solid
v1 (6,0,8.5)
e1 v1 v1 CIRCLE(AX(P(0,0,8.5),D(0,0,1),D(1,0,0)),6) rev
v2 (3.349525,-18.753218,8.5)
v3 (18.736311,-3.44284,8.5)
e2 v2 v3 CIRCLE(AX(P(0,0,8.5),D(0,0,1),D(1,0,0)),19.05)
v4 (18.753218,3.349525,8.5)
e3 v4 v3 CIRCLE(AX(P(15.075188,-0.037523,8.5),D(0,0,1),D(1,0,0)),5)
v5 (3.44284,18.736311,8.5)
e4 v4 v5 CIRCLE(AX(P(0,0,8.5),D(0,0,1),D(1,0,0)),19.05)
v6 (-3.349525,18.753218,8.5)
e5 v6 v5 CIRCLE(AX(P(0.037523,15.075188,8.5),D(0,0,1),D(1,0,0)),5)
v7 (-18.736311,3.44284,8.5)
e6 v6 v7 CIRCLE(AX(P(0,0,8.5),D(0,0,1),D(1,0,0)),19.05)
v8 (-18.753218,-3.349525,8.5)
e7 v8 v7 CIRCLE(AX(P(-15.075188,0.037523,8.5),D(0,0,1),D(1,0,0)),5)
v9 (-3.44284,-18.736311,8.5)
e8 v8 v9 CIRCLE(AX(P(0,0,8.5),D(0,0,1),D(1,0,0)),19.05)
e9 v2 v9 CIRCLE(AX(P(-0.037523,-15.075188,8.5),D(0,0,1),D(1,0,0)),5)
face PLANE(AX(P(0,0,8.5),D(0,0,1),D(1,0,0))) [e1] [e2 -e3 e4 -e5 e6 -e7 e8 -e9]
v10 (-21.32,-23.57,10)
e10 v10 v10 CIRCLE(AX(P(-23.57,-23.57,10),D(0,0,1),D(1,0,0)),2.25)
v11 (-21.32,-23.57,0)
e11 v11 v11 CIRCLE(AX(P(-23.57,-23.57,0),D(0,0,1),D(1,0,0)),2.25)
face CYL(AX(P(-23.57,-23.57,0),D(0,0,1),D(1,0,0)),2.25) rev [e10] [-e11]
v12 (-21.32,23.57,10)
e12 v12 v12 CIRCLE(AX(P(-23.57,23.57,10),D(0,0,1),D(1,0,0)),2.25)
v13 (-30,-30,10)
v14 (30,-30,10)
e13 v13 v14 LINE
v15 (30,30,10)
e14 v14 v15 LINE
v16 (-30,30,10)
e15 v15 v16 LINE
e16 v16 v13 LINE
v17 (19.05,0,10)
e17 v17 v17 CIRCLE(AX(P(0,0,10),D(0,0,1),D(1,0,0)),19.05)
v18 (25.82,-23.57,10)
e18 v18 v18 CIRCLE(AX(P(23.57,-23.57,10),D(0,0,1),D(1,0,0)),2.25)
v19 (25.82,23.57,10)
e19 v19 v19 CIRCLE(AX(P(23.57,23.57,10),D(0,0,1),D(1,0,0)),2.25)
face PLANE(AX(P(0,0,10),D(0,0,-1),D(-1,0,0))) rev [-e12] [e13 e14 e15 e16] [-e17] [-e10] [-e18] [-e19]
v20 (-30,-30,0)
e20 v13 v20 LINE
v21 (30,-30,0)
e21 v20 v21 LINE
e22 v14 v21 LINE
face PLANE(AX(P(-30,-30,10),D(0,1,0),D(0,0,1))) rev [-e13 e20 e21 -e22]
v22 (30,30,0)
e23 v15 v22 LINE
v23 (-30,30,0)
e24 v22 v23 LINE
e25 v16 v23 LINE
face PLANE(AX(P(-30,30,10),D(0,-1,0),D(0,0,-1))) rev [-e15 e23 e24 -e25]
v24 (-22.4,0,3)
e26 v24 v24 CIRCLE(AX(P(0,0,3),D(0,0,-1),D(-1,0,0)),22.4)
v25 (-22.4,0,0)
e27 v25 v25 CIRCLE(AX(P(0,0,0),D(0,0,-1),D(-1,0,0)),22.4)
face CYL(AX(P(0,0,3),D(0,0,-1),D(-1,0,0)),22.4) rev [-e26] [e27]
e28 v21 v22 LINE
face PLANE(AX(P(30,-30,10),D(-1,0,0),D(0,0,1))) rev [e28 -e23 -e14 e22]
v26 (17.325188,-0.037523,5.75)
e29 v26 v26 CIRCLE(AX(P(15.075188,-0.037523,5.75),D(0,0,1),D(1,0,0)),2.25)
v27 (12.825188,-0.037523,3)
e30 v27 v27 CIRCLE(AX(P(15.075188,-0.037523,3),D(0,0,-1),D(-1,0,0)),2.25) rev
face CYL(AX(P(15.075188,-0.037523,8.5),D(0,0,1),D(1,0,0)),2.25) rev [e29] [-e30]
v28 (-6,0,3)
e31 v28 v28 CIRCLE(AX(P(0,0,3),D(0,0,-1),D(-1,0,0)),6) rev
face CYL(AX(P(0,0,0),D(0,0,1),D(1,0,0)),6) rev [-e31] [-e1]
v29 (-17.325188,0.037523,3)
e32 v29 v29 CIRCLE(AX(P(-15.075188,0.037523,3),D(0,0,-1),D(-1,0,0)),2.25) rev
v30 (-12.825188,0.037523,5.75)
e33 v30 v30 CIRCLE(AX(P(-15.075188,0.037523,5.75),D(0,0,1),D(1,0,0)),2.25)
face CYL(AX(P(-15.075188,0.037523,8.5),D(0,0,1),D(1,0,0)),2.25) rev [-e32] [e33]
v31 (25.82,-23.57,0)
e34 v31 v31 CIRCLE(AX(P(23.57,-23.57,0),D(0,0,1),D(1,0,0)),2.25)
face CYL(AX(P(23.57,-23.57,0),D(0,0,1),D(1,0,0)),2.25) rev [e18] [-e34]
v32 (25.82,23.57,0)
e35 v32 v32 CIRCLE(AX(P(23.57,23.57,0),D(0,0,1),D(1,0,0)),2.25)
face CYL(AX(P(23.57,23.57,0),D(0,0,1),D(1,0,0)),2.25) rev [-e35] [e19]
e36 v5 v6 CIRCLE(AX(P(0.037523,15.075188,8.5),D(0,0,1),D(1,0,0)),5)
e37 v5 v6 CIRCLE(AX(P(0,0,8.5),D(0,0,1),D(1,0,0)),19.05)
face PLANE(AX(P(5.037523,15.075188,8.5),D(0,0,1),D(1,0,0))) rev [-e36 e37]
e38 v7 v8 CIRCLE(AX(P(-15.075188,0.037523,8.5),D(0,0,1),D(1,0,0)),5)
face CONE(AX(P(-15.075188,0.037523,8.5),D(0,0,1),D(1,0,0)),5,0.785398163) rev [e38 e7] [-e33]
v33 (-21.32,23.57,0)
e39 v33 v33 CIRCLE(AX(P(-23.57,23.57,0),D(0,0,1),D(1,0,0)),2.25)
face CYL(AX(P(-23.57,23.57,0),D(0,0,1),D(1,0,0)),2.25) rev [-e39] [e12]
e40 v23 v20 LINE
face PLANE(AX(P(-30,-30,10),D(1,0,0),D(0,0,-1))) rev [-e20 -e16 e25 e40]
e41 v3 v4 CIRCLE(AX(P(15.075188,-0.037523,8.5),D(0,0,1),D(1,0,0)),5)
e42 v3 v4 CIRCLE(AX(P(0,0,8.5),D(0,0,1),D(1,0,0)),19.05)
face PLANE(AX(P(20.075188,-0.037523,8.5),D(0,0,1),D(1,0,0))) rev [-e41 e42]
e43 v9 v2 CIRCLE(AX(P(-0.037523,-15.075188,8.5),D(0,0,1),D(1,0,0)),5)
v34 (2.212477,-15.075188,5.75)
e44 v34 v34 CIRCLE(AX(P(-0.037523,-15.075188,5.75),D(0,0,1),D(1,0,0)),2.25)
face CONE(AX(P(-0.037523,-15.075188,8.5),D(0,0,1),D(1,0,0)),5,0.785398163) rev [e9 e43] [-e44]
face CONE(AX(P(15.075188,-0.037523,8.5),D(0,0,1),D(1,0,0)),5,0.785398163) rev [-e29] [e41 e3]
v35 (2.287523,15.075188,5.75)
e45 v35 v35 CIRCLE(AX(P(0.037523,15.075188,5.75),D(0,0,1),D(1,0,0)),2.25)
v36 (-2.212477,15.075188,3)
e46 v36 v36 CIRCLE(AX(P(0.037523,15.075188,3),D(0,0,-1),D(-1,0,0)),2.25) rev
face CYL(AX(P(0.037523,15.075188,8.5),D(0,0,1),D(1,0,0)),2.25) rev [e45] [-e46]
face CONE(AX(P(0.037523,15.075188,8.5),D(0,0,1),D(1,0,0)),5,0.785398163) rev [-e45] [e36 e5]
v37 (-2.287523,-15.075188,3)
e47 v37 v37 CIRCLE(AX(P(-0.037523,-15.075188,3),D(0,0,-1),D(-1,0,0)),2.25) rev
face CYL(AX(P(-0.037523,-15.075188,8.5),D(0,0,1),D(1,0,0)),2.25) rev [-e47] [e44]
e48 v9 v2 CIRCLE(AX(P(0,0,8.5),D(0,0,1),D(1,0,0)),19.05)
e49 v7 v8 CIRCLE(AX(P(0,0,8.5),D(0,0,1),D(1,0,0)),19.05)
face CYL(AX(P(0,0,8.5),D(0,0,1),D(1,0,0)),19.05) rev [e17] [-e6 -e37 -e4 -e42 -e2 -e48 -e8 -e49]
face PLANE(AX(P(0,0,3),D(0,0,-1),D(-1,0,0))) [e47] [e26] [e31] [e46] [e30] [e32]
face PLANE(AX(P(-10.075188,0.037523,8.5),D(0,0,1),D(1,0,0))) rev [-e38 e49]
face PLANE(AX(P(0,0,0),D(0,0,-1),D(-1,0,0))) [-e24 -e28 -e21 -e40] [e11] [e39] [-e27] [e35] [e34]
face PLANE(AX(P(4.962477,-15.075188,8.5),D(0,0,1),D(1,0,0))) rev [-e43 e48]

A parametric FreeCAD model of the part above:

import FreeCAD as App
import Part
import Sketcher

V = App.Vector
Q = App.Units.Quantity

doc = App.newDocument("Part")
body = doc.addObject("PartDesign::Body", "Body")

# Sketch on XY plane
sketch1 = doc.addObject("Sketcher::SketchObject", "Sketch")
body.addObject(sketch1)
sketch1.AttachmentSupport = (doc.XY_Plane, [""])
sketch1.MapMode = "FlatFace"
sketch1.addGeometry(Part.LineSegment(V(-30, 30, 0), V(-30, -30, 0)), False)
sketch1.addGeometry(Part.LineSegment(V(-30, -30, 0), V(30, -30, 0)), False)
sketch1.addGeometry(Part.LineSegment(V(30, -30, 0), V(30, 30, 0)), False)
sketch1.addGeometry(Part.LineSegment(V(30, 30, 0), V(-30, 30, 0)), False)
sketch1.addConstraint(Sketcher.Constraint("Coincident", 0, 2, 1, 1))
sketch1.addConstraint(Sketcher.Constraint("Coincident", 1, 2, 2, 1))
sketch1.addConstraint(Sketcher.Constraint("Coincident", 2, 2, 3, 1))
sketch1.addConstraint(Sketcher.Constraint("Coincident", 3, 2, 0, 1))
sketch1.addConstraint(Sketcher.Constraint("Vertical", 0))
sketch1.addConstraint(Sketcher.Constraint("Horizontal", 1))
sketch1.addConstraint(Sketcher.Constraint("Vertical", 2))
sketch1.addConstraint(Sketcher.Constraint("Horizontal", 3))
sketch1.addConstraint(Sketcher.Constraint("Symmetric", 0, 2, 2, 2, -1, 1))
sketch1.addConstraint(Sketcher.Constraint("Equal", 3, 0))
sketch1.addConstraint(Sketcher.Constraint("DistanceX", 1, 1, 1, 2, Q("60 mm")))
pad1 = doc.addObject("PartDesign::Pad", "Pad")
body.addObject(pad1)
pad1.Profile = sketch1
pad1.Length = 10

# Sketch on XY plane
sketch2 = doc.addObject("Sketcher::SketchObject", "Sketch001")
body.addObject(sketch2)
sketch2.AttachmentSupport = (doc.XY_Plane, [""])
sketch2.MapMode = "FlatFace"
sketch2.AttachmentOffset = App.Placement(V(0, 0, 10), App.Rotation())
sketch2.addGeometry(Part.Circle(V(0, 0, 0), V(0, 0, 1), 6), False)
sketch2.addConstraint(Sketcher.Constraint("Coincident", 0, 3, -1, 1))
sketch2.addConstraint(Sketcher.Constraint("Diameter", 0, Q("12 mm")))
pocket1 = doc.addObject("PartDesign::Pocket", "Pocket")
body.addObject(pocket1)
pocket1.Profile = sketch2
pocket1.Length = 10

# Sketch on XY plane
sketch3 = doc.addObject("Sketcher::SketchObject", "Sketch002")
body.addObject(sketch3)
sketch3.AttachmentSupport = (doc.XY_Plane, [""])
sketch3.MapMode = "FlatFace"
sketch3.AttachmentOffset = App.Placement(V(0, 0, 10), App.Rotation())
sketch3.addGeometry(Part.Circle(V(0, 0, 0), V(0, 0, 1), 19.05), False)
sketch3.addConstraint(Sketcher.Constraint("Coincident", 0, 3, -1, 1))
sketch3.addConstraint(Sketcher.Constraint("Diameter", 0, Q("38.1 mm")))
pocket2 = doc.addObject("PartDesign::Pocket", "Pocket001")
body.addObject(pocket2)
pocket2.Profile = sketch3
pocket2.Length = 1.5

# Sketch on XY plane
sketch4 = doc.addObject("Sketcher::SketchObject", "Sketch003")
body.addObject(sketch4)
sketch4.AttachmentSupport = (doc.XY_Plane, [""])
sketch4.MapMode = "FlatFace"
sketch4.AttachmentOffset = App.Placement(V(0, 0, 10), App.Rotation())
sketch4.addGeometry(Part.Circle(V(-23.57, 23.57, 0), V(0, 0, 1), 2.25), False)
sketch4.addGeometry(Part.Circle(V(23.57, 23.57, 0), V(0, 0, 1), 2.25), False)
sketch4.addGeometry(Part.Circle(V(23.57, -23.57, 0), V(0, 0, 1), 2.25), False)
sketch4.addGeometry(Part.Circle(V(-23.57, -23.57, 0), V(0, 0, 1), 2.25), False)
sketch4.addConstraint(Sketcher.Constraint("Equal", 0, 1))
sketch4.addConstraint(Sketcher.Constraint("Equal", 1, 2))
sketch4.addConstraint(Sketcher.Constraint("Equal", 2, 3))
sketch4.addConstraint(Sketcher.Constraint("Symmetric", 0, 3, 2, 3, -1, 1))
sketch4.addConstraint(Sketcher.Constraint("Symmetric", 1, 3, 3, 3, -1, 1))
sketch4.addConstraint(Sketcher.Constraint("Symmetric", 0, 3, 1, 3, -2))
sketch4.addConstraint(Sketcher.Constraint("Diameter", 0, Q("4.5 mm")))
sketch4.addConstraint(Sketcher.Constraint("DistanceX", 0, 3, -1, 1, Q("23.57 mm")))
sketch4.addConstraint(Sketcher.Constraint("DistanceY", -1, 1, 0, 3, Q("23.57 mm")))
pocket3 = doc.addObject("PartDesign::Pocket", "Pocket002")
body.addObject(pocket3)
pocket3.Profile = sketch4
pocket3.Length = 10

# Sketch on YZ plane
sketch5 = doc.addObject("Sketcher::SketchObject", "Sketch004")
body.addObject(sketch5)
sketch5.AttachmentSupport = (doc.YZ_Plane, [""])
sketch5.MapMode = "FlatFace"
sketch5.AttachmentOffset = App.Placement(V(0, 0, -15.075188), App.Rotation())
sketch5.addGeometry(Part.LineSegment(V(0.037523, -7.851936, 0), V(0.037523, 8.5, 0)), False)
sketch5.addGeometry(Part.LineSegment(V(0.037523, 8.5, 0), V(-4.962477, 8.5, 0)), False)
sketch5.addGeometry(Part.LineSegment(V(-4.962477, 8.5, 0), V(-2.212477, 5.75, 0)), False)
sketch5.addGeometry(Part.LineSegment(V(-2.212477, 5.75, 0), V(-2.212477, -6.5, 0)), False)
sketch5.addGeometry(Part.LineSegment(V(-2.212477, -6.5, 0), V(0.037523, -7.851936, 0)), False)
sketch5.addGeometry(Part.LineSegment(V(0.037523, 8.5, 0), V(0.037523, -7.851936, 0)), True)  # axis
sketch5.addConstraint(Sketcher.Constraint("Coincident", 0, 2, 1, 1))
sketch5.addConstraint(Sketcher.Constraint("Coincident", 1, 2, 2, 1))
sketch5.addConstraint(Sketcher.Constraint("Coincident", 2, 2, 3, 1))
sketch5.addConstraint(Sketcher.Constraint("Coincident", 3, 2, 4, 1))
sketch5.addConstraint(Sketcher.Constraint("Coincident", 4, 2, 0, 1))
sketch5.addConstraint(Sketcher.Constraint("Vertical", 0))
sketch5.addConstraint(Sketcher.Constraint("Horizontal", 1))
sketch5.addConstraint(Sketcher.Constraint("Vertical", 3))
sketch5.addConstraint(Sketcher.Constraint("Vertical", 5))
sketch5.addConstraint(Sketcher.Constraint("Coincident", 5, 1, 0, 2))
sketch5.addConstraint(Sketcher.Constraint("Equal", 0, 5))
sketch5.addConstraint(Sketcher.Constraint("DistanceX", 1, 2, 1, 1, Q("5 mm")))
sketch5.addConstraint(Sketcher.Constraint("Angle", 2, Q("-45 deg")))
sketch5.addConstraint(Sketcher.Constraint("Angle", 4, Q("-31 deg")))
sketch5.addConstraint(Sketcher.Constraint("DistanceY", 3, 2, 0, 2, Q("15 mm")))
sketch5.addConstraint(Sketcher.Constraint("DistanceY", 3, 2, 3, 1, Q("12.25 mm")))
sketch5.addConstraint(Sketcher.Constraint("DistanceY", -1, 1, 0, 2, Q("8.5 mm")))
sketch5.addConstraint(Sketcher.Constraint("DistanceX", -1, 1, 0, 2, Q("0.037523 mm")))
groove = doc.addObject("PartDesign::Groove", "Groove")
body.addObject(groove)
groove.Profile = sketch5
groove.ReferenceAxis = (sketch5, ["Axis0"])
groove.Angle = 360
doc.recompute()

datumline = doc.addObject("PartDesign::Line", "DatumLine")
body.addObject(datumline)
datumline.Placement = App.Placement(V(0, 0, 0), App.Rotation(V(0, 0, 1), V(0.999996902, -0.00248908, 0)))
linearpattern = doc.addObject("PartDesign::LinearPattern", "LinearPattern")
body.addObject(linearpattern)
linearpattern.Originals = [groove]
linearpattern.Direction = (datumline, [""])
linearpattern.Mode = "offset"
linearpattern.Offset = 30.15047
linearpattern.Occurrences = 2
body.Tip = linearpattern
doc.recompute()

datumline2 = doc.addObject("PartDesign::Line", "DatumLine001")
body.addObject(datumline2)
datumline2.Placement = App.Placement(V(0, 0, 0), App.Rotation(V(0, 0, 1), V(0.708864636, 0.705344545, 0)))
linearpattern2 = doc.addObject("PartDesign::LinearPattern", "LinearPattern001")
body.addObject(linearpattern2)
linearpattern2.Originals = [groove]
linearpattern2.Direction = (datumline2, [""])
linearpattern2.Mode = "offset"
linearpattern2.Offset = 21.319602
linearpattern2.Occurrences = 2
body.Tip = linearpattern2
doc.recompute()

datumline3 = doc.addObject("PartDesign::Line", "DatumLine002")
body.addObject(datumline3)
datumline3.Placement = App.Placement(V(0, 0, 0), App.Rotation(V(0, 0, 1), V(0.705344545, -0.708864636, 0)))
linearpattern3 = doc.addObject("PartDesign::LinearPattern", "LinearPattern002")
body.addObject(linearpattern3)
linearpattern3.Originals = [groove]
linearpattern3.Direction = (datumline3, [""])
linearpattern3.Mode = "offset"
linearpattern3.Offset = 21.319602
linearpattern3.Occurrences = 2
body.Tip = linearpattern3

# Sketch on XY plane
sketch6 = doc.addObject("Sketcher::SketchObject", "Sketch005")
body.addObject(sketch6)
sketch6.AttachmentSupport = (doc.XY_Plane, [""])
sketch6.MapMode = "FlatFace"
sketch6.addGeometry(Part.Circle(V(0, 0, 0), V(0, 0, 1), 22.4), False)
sketch6.addConstraint(Sketcher.Constraint("Coincident", 0, 3, -1, 1))
sketch6.addConstraint(Sketcher.Constraint("Diameter", 0, Q("44.8 mm")))
pocket4 = doc.addObject("PartDesign::Pocket", "Pocket003")
body.addObject(pocket4)
pocket4.Profile = sketch6
pocket4.Length = 3
pocket4.Reversed = True

doc.recompute()
